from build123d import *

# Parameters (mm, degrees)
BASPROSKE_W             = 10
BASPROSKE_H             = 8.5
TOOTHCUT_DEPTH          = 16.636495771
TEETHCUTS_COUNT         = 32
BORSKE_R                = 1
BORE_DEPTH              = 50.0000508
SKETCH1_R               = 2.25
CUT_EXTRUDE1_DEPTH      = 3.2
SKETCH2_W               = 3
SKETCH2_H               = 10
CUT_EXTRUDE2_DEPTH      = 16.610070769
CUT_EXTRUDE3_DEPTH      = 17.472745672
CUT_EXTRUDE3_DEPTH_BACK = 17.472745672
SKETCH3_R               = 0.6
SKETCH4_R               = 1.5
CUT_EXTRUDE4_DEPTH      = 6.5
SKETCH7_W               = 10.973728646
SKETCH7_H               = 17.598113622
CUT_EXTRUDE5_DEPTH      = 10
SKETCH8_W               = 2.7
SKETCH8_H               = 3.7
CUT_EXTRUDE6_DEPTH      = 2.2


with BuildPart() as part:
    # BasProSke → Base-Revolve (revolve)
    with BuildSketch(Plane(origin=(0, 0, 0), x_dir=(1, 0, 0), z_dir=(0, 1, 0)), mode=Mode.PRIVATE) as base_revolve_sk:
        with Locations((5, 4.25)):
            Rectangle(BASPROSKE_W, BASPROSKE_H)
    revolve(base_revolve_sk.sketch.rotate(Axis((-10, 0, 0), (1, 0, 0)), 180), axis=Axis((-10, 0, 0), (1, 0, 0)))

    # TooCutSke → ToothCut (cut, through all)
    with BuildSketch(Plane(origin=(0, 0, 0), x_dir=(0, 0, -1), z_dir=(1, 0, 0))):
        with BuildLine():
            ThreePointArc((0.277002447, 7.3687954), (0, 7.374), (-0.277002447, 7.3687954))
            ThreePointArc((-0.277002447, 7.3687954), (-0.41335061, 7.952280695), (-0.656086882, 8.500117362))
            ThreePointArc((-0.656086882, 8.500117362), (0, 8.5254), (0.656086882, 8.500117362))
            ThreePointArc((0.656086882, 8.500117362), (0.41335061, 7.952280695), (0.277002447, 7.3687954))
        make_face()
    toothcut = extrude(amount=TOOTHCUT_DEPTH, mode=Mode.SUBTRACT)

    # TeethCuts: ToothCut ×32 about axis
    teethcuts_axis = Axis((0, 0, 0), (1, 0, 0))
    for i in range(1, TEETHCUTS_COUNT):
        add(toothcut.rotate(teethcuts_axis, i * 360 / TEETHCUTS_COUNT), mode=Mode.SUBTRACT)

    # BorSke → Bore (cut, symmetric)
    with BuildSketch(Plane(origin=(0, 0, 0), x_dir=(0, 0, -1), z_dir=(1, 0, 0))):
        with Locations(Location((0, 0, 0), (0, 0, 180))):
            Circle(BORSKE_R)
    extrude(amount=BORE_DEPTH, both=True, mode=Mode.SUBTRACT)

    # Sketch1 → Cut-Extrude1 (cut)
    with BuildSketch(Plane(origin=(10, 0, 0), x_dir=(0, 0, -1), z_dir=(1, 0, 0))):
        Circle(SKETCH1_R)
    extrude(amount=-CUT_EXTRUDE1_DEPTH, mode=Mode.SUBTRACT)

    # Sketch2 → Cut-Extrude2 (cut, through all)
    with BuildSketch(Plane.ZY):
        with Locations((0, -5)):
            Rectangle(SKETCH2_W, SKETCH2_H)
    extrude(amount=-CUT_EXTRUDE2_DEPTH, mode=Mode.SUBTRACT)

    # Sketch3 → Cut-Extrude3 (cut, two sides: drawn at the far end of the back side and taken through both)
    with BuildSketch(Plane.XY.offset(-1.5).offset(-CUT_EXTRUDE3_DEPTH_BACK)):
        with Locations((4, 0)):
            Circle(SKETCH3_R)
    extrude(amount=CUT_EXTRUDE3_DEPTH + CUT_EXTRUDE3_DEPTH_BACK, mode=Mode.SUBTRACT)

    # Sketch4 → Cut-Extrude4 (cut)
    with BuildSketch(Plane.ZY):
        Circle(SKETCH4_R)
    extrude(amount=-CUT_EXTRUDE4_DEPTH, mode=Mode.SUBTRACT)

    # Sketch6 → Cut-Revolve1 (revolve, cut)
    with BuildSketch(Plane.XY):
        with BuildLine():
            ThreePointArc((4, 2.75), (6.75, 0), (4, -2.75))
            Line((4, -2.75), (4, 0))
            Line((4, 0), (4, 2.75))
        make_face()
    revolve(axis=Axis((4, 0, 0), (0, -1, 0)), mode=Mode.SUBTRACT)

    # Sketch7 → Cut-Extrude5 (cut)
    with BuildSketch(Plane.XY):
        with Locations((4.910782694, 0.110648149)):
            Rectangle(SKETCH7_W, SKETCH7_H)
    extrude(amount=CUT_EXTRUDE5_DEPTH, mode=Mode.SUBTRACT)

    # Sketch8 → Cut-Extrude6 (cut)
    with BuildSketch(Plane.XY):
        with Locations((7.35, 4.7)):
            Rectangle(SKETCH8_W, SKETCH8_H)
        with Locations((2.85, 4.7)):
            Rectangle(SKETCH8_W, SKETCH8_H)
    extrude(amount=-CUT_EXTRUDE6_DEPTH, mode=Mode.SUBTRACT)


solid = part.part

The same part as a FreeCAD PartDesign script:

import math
import FreeCAD as App
import Part
import Sketcher


def add_polygon(sketch, points):
    """Adds a closed chain of lines whose ends are joined by coincident constraints."""
    first, n = sketch.GeometryCount, len(points)
    for a, b in zip(points, points[1:] + points[:1]):
        sketch.addGeometry(Part.LineSegment(App.Vector(*a, 0), App.Vector(*b, 0)), False)
    for i in range(n):
        sketch.addConstraint(Sketcher.Constraint("Coincident", first + i, 2, first + (i + 1) % n, 1))

doc = App.newDocument("Part")
body = doc.addObject("PartDesign::Body", "Body")

# Sketch on XZ plane
sketch1 = body.newObject("Sketcher::SketchObject", "Sketch")
sketch1.AttachmentSupport = (doc.getObject("XZ_Plane"), [""])
sketch1.MapMode = "FlatFace"
add_polygon(sketch1, [(0, -8.5), (0, 0), (10, 0), (10, -8.5)])  # lines 0-3
sketch1.addConstraint([
    Sketcher.Constraint("Vertical", 0),
    Sketcher.Constraint("Horizontal", 1),
    Sketcher.Constraint("Vertical", 2),
    Sketcher.Constraint("Horizontal", 3),
    Sketcher.Constraint("Coincident", 0, 2, -1, 1),
    Sketcher.Constraint("DistanceX", 1, 1, 1, 2, 10.0),
    Sketcher.Constraint("DistanceY", 0, 1, 0, 2, 8.5),
])
revolution = body.newObject("PartDesign::Revolution", "Revolution")
revolution.Profile = sketch1
revolution.ReferenceAxis = (sketch1, ["H_Axis"])
revolution.Angle = 360

# Sketch on YZ plane
sketch2 = body.newObject("Sketcher::SketchObject", "Sketch001")
sketch2.AttachmentSupport = (doc.getObject("YZ_Plane"), [""])
sketch2.MapMode = "FlatFace"
sketch2.addGeometry([
    Part.ArcOfCircle(Part.Circle(App.Vector(0, 0, 0), App.Vector(0, 0, 1), 7.374), math.radians(-2.152808), math.radians(2.152808)),
    Part.ArcOfCircle(Part.Circle(App.Vector(6.935581, -3.447543, 0), App.Vector(0, 0, 1), 3.2), math.radians(60.730531), math.radians(82.21943)),
    Part.ArcOfCircle(Part.Circle(App.Vector(0, 0, 0), App.Vector(0, 0, 1), 8.5254), math.radians(-4.413659), math.radians(4.413659)),
    Part.ArcOfCircle(Part.Circle(App.Vector(6.935581, 3.447543, 0), App.Vector(0, 0, 1), 3.2), math.radians(-82.21943), math.radians(-60.730531)),
], False)
sketch2.addConstraint([
    Sketcher.Constraint("Coincident", 0, 1, 1, 2),
    Sketcher.Constraint("Coincident", 1, 1, 2, 1),
    Sketcher.Constraint("Coincident", 2, 2, 3, 2),
    Sketcher.Constraint("Coincident", 3, 1, 0, 2),
    Sketcher.Constraint("Coincident", 0, 3, -1, 1),
    Sketcher.Constraint("Coincident", 2, 3, -1, 1),
    Sketcher.Constraint("Equal", 1, 3),
    Sketcher.Constraint("Symmetric", 1, 3, 3, 3, -1),
    Sketcher.Constraint("Radius", 1, 3.2),
    Sketcher.Constraint("Radius", 0, 7.374),
    Sketcher.Constraint("Radius", 2, 8.5254),
    Sketcher.Constraint("DistanceX", -1, 1, 1, 3, 6.935581),
    Sketcher.Constraint("DistanceX", 0, 1, 1, 1, 1.131322),
])
pocket1 = body.newObject("PartDesign::Pocket", "Pocket")
pocket1.Profile = sketch2
pocket1.Type = "ThroughAll"
pocket1.Reversed = True
doc.recompute()

polarpattern = body.newObject("PartDesign::PolarPattern", "PolarPattern")
polarpattern.Originals = [pocket1]
polarpattern.Axis = (doc.getObject("X_Axis"), [""])
polarpattern.Angle = 360
polarpattern.Occurrences = 32
body.Tip = polarpattern

# Sketch on YZ plane
sketch3 = body.newObject("Sketcher::SketchObject", "Sketch002")
sketch3.AttachmentSupport = (doc.getObject("YZ_Plane"), [""])
sketch3.MapMode = "FlatFace"
sketch3.addGeometry(Part.Circle(App.Vector(0, 0, 0), App.Vector(0, 0, 1), 1), False)
sketch3.addConstraint([
    Sketcher.Constraint("Coincident", 0, 3, -1, 1),
    Sketcher.Constraint("Diameter", 0, 2.0),
])
pocket2 = body.newObject("PartDesign::Pocket", "Pocket001")
pocket2.Profile = sketch3
pocket2.Length = 100.000102
pocket2.Midplane = True

# Sketch on YZ plane
sketch4 = body.newObject("Sketcher::SketchObject", "Sketch003")
sketch4.AttachmentSupport = (doc.getObject("YZ_Plane"), [""])
sketch4.MapMode = "FlatFace"
sketch4.AttachmentOffset = App.Placement(App.Vector(0, 0, 10), App.Rotation())
sketch4.addGeometry(Part.Circle(App.Vector(0, 0, 0), App.Vector(0, 0, 1), 2.25), False)
sketch4.addConstraint([
    Sketcher.Constraint("Coincident", 0, 3, -1, 1),
    Sketcher.Constraint("Diameter", 0, 4.5),
])
pocket3 = body.newObject("PartDesign::Pocket", "Pocket002")
pocket3.Profile = sketch4
pocket3.Length = 3.2

# Sketch on YZ plane
sketch5 = body.newObject("Sketcher::SketchObject", "Sketch004")
sketch5.AttachmentSupport = (doc.getObject("YZ_Plane"), [""])
sketch5.MapMode = "FlatFace"
add_polygon(sketch5, [(0, -1.5), (-10, -1.5), (-10, 1.5), (0, 1.5)])  # lines 0-3
sketch5.addConstraint([
    Sketcher.Constraint("Horizontal", 0),
    Sketcher.Constraint("Vertical", 1),
    Sketcher.Constraint("Horizontal", 2),
    Sketcher.Constraint("Vertical", 3),
    Sketcher.Constraint("Symmetric", 2, 2, 3, 2, -1, 1),
    Sketcher.Constraint("DistanceX", 0, 2, 0, 1, 10.0),
    Sketcher.Constraint("DistanceY", 1, 1, 1, 2, 3.0),
])
pocket4 = body.newObject("PartDesign::Pocket", "Pocket003")
pocket4.Profile = sketch5
pocket4.Type = "ThroughAll"
pocket4.Reversed = True

# Sketch on XY plane
sketch6 = body.newObject("Sketcher::SketchObject", "Sketch005")
sketch6.AttachmentSupport = (doc.getObject("XY_Plane"), [""])
sketch6.MapMode = "FlatFace"
sketch6.AttachmentOffset = App.Placement(App.Vector(0, 0, -1.5), App.Rotation())
sketch6.addGeometry(Part.Circle(App.Vector(4, 0, 0), App.Vector(0, 0, 1), 0.6), False)
sketch6.addConstraint([
    Sketcher.Constraint("PointOnObject", 0, 3, -1),
    Sketcher.Constraint("Diameter", 0, 1.2),
    Sketcher.Constraint("DistanceX", -1, 1, 0, 3, 4.0),
])
pocket5 = body.newObject("PartDesign::Pocket", "Pocket004")
pocket5.Profile = sketch6
pocket5.Type = "ThroughAll"
pocket5.Midplane = True

# Sketch on YZ plane
sketch7 = body.newObject("Sketcher::SketchObject", "Sketch006")
sketch7.AttachmentSupport = (doc.getObject("YZ_Plane"), [""])
sketch7.MapMode = "FlatFace"
sketch7.addGeometry(Part.Circle(App.Vector(0, 0, 0), App.Vector(0, 0, 1), 1.5), False)
sketch7.addConstraint([
    Sketcher.Constraint("Coincident", 0, 3, -1, 1),
    Sketcher.Constraint("Diameter", 0, 3.0),
])
pocket6 = body.newObject("PartDesign::Pocket", "Pocket005")
pocket6.Profile = sketch7
pocket6.Length = 6.5
pocket6.Reversed = True

# Sketch on XY plane
sketch8 = body.newObject("Sketcher::SketchObject", "Sketch007")
sketch8.AttachmentSupport = (doc.getObject("XY_Plane"), [""])
sketch8.MapMode = "FlatFace"
sketch8.addGeometry([
    Part.ArcOfCircle(Part.Circle(App.Vector(4, 0, 0), App.Vector(0, 0, 1), 2.75), math.radians(-90), math.radians(90)),
    Part.LineSegment(App.Vector(4, 2.75, 0), App.Vector(4, -2.75, 0)),
], False)
sketch8.addGeometry(Part.LineSegment(App.Vector(4, 2.75, 0), App.Vector(4, -2.75, 0)), True)  # axis
sketch8.addConstraint([
    Sketcher.Constraint("Coincident", 0, 1, 1, 2),
    Sketcher.Constraint("Coincident", 1, 1, 0, 2),
    Sketcher.Constraint("Vertical", 1),
    Sketcher.Constraint("Vertical", 2),
    Sketcher.Constraint("Coincident", 2, 1, 1, 1),
    Sketcher.Constraint("PointOnObject", 0, 3, -1),
    Sketcher.Constraint("Equal", 1, 2),
    Sketcher.Constraint("Radius", 0, 2.75),
    Sketcher.Constraint("DistanceX", -1, 1, 0, 3, 4.0),
    Sketcher.Constraint("DistanceX", -1, 1, 0, 1, 4.0),
])
groove = body.newObject("PartDesign::Groove", "Groove")
groove.Profile = sketch8
groove.ReferenceAxis = (sketch8, ["Axis0"])
groove.Angle = 360

# Sketch on XY plane
sketch9 = body.newObject("Sketcher::SketchObject", "Sketch008")
sketch9.AttachmentSupport = (doc.getObject("XY_Plane"), [""])
sketch9.MapMode = "FlatFace"
add_polygon(sketch9, [(-0.576082, 8.909705), (-0.576082, -8.688409), (10.397647, -8.688409), (10.397647, 8.909705)])  # lines 0-3
sketch9.addConstraint([
    Sketcher.Constraint("Vertical", 0),
    Sketcher.Constraint("Horizontal", 1),
    Sketcher.Constraint("Vertical", 2),
    Sketcher.Constraint("Horizontal", 3),
    Sketcher.Constraint("DistanceX", 1, 1, 1, 2, 10.973729),
    Sketcher.Constraint("DistanceY", 0, 2, 0, 1, 17.598114),
    Sketcher.Constraint("DistanceX", 0, 2, -1, 1, 0.576082),
    Sketcher.Constraint("DistanceY", 0, 2, -1, 1, 8.688409),
])
pocket7 = body.newObject("PartDesign::Pocket", "Pocket006")
pocket7.Profile = sketch9
pocket7.Length = 10
pocket7.Reversed = True

# Sketch on XY plane
sketch10 = body.newObject("Sketcher::SketchObject", "Sketch009")
sketch10.AttachmentSupport = (doc.getObject("XY_Plane"), [""])
sketch10.MapMode = "FlatFace"
add_polygon(sketch10, [(6, 6.55), (6, 2.85), (8.7, 2.85), (8.7, 6.55)])  # lines 0-3
add_polygon(sketch10, [(1.5, 6.55), (1.5, 2.85), (4.2, 2.85), (4.2, 6.55)])  # lines 4-7
sketch10.addConstraint([
    Sketcher.Constraint("Vertical", 0),
    Sketcher.Constraint("Horizontal", 1),
    Sketcher.Constraint("Vertical", 2),
    Sketcher.Constraint("Horizontal", 3),
    Sketcher.Constraint("Vertical", 4),
    Sketcher.Constraint("Horizontal", 5),
    Sketcher.Constraint("Vertical", 6),
    Sketcher.Constraint("Horizontal", 7),
    Sketcher.Constraint("Horizontal", 1, 2, 4, 2),
    Sketcher.Constraint("Horizontal", 3, 2, 6, 2),
    Sketcher.Constraint("Equal", 3, 5),
    Sketcher.Constraint("DistanceX", 1, 1, 1, 2, 2.7),
    Sketcher.Constraint("DistanceY", 0, 2, 0, 1, 3.7),
    Sketcher.Constraint("DistanceX", -1, 1, 0, 2, 6.0),
    Sketcher.Constraint("DistanceX", -1, 1, 4, 2, 1.5),
    Sketcher.Constraint("DistanceY", -1, 1, 0, 2, 2.85),
])
pocket8 = body.newObject("PartDesign::Pocket", "Pocket007")
pocket8.Profile = sketch10
pocket8.Length = 2.2

doc.recompute()
